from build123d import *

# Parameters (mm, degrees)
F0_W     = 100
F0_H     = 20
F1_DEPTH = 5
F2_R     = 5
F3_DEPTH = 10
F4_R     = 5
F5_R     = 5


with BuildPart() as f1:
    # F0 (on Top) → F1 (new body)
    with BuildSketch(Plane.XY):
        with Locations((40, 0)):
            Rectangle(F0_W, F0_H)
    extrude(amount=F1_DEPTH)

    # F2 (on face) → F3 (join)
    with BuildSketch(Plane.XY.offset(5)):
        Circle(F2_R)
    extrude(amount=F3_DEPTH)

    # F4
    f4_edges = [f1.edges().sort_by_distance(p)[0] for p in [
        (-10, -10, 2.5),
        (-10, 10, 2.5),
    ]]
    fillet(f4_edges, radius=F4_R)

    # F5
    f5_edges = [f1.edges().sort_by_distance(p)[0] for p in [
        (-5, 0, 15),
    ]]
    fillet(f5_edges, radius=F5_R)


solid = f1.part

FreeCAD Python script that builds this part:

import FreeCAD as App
import Part
import Sketcher

V = App.Vector


def edges_at(feature, points):
    """Names of the edges that pass closest to the given points."""
    edges = feature.Shape.Edges
    near = lambda p: min(range(len(edges)), key=lambda i: edges[i].distToShape(Part.Vertex(*p))[0])
    return sorted({f"Edge{near(p) + 1}" for p in points})


def add_polygon(sketch, points):
    """Adds a closed chain of lines whose ends are joined by coincident constraints."""
    first, n = sketch.GeometryCount, len(points)
    for a, b in zip(points, points[1:] + points[:1]):
        sketch.addGeometry(Part.LineSegment(App.Vector(*a, 0), App.Vector(*b, 0)), False)
    for i in range(n):
        sketch.addConstraint(Sketcher.Constraint("Coincident", first + i, 2, first + (i + 1) % n, 1))

doc = App.newDocument("Part")
body = doc.addObject("PartDesign::Body", "Body")

# Sketch on XY plane
sketch1 = body.newObject("Sketcher::SketchObject", "Sketch")
sketch1.AttachmentSupport = (doc.getObject("XY_Plane"), [""])
sketch1.MapMode = "FlatFace"
add_polygon(sketch1, [(-10, 10), (-10, -10), (90, -10), (90, 10)])  # lines 0-3
sketch1.addConstraint(Sketcher.Constraint("Vertical", 0))
sketch1.addConstraint(Sketcher.Constraint("Horizontal", 1))
sketch1.addConstraint(Sketcher.Constraint("Vertical", 2))
sketch1.addConstraint(Sketcher.Constraint("Horizontal", 3))
sketch1.addConstraint(Sketcher.Constraint("DistanceX", 1, 1, 1, 2, 100.0))
sketch1.addConstraint(Sketcher.Constraint("DistanceY", 0, 2, 0, 1, 20.0))
sketch1.addConstraint(Sketcher.Constraint("DistanceX", 0, 2, -1, 1, 10.0))
sketch1.addConstraint(Sketcher.Constraint("DistanceY", 0, 2, -1, 1, 10.0))
pad1 = body.newObject("PartDesign::Pad", "Pad")
pad1.Profile = sketch1
pad1.Length = 5

# Sketch on XY plane
sketch2 = body.newObject("Sketcher::SketchObject", "Sketch001")
sketch2.AttachmentSupport = (doc.getObject("XY_Plane"), [""])
sketch2.MapMode = "FlatFace"
sketch2.AttachmentOffset = App.Placement(V(0, 0, 5), App.Rotation())
sketch2.addGeometry(Part.Circle(V(0, 0, 0), V(0, 0, 1), 5), False)
sketch2.addConstraint(Sketcher.Constraint("Coincident", 0, 3, -1, 1))
sketch2.addConstraint(Sketcher.Constraint("Diameter", 0, 10.0))
pad2 = body.newObject("PartDesign::Pad", "Pad001")
pad2.Profile = sketch2
pad2.Length = 10
doc.recompute()

fillet = body.newObject("PartDesign::Fillet", "Fillet")
fillet.Base = (pad2, edges_at(pad2, [(-10, -10, 2.5), (-10, 10, 2.5)]))
fillet.Radius = 5
doc.recompute()

fillet2 = body.newObject("PartDesign::Fillet", "Fillet001")
fillet2.Base = (fillet, edges_at(fillet, [(-5, 0, 15)]))
fillet2.Radius = 5

doc.recompute()
